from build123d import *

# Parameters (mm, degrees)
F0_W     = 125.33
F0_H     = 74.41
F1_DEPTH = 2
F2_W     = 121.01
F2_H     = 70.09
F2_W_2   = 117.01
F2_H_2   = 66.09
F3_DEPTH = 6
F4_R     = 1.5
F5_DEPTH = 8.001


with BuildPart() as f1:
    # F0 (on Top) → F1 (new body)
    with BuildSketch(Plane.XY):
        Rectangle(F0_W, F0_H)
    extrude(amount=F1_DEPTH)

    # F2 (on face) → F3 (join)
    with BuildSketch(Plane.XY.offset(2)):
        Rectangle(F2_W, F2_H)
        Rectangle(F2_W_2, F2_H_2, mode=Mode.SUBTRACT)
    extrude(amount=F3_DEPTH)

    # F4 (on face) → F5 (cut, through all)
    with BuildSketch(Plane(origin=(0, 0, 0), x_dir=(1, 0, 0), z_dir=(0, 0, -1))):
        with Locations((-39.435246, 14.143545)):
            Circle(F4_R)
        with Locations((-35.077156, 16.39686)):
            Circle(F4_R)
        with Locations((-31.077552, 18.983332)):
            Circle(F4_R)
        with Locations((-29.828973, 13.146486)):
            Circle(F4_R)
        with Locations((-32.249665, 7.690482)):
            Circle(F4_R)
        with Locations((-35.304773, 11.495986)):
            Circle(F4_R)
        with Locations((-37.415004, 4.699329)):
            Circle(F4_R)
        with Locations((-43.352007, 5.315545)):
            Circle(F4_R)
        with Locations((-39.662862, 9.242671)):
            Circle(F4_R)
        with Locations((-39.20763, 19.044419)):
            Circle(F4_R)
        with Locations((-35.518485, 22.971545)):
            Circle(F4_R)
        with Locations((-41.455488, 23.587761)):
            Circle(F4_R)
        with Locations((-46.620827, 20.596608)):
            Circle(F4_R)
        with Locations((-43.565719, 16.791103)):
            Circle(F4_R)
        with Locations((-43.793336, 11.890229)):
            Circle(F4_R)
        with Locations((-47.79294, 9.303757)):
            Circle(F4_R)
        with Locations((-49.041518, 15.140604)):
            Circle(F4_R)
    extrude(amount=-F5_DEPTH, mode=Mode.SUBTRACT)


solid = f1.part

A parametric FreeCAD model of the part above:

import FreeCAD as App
import Part
import Sketcher
Q = App.Units.Quantity


def add_polygon(sketch, points):
    """Adds a closed chain of lines whose ends are joined by coincident constraints."""
    first, n = sketch.GeometryCount, len(points)
    for a, b in zip(points, points[1:] + points[:1]):
        sketch.addGeometry(Part.LineSegment(App.Vector(*a, 0), App.Vector(*b, 0)), False)
    for i in range(n):
        sketch.addConstraint(Sketcher.Constraint("Coincident", first + i, 2, first + (i + 1) % n, 1))

doc = App.newDocument("Part")
body = doc.addObject("PartDesign::Body", "Body")

# Sketch on XY plane
sketch1 = doc.addObject("Sketcher::SketchObject", "Sketch")
body.addObject(sketch1)
sketch1.AttachmentSupport = (doc.XY_Plane, [""])
sketch1.MapMode = "FlatFace"
add_polygon(sketch1, [(-63, 37), (-63, -37), (63, -37), (63, 37)])  # lines 0-3
sketch1.addConstraint(Sketcher.Constraint("Vertical", 0))
sketch1.addConstraint(Sketcher.Constraint("Horizontal", 1))
sketch1.addConstraint(Sketcher.Constraint("Vertical", 2))
sketch1.addConstraint(Sketcher.Constraint("Horizontal", 3))
sketch1.addConstraint(Sketcher.Constraint("Symmetric", 0, 2, 2, 2, -1, 1))
sketch1.addConstraint(Sketcher.Constraint("DistanceX", 1, 1, 1, 2, Q("125.33 mm")))
sketch1.addConstraint(Sketcher.Constraint("DistanceY", 0, 2, 0, 1, Q("74.41 mm")))
pad1 = doc.addObject("PartDesign::Pad", "Pad")
body.addObject(pad1)
pad1.Profile = sketch1
pad1.Length = 2

# Sketch on XY plane
sketch2 = doc.addObject("Sketcher::SketchObject", "Sketch001")
body.addObject(sketch2)
sketch2.AttachmentSupport = (doc.XY_Plane, [""])
sketch2.MapMode = "FlatFace"
sketch2.AttachmentOffset = App.Placement(App.Vector(0, 0, 2), App.Rotation())
add_polygon(sketch2, [(-61, 35), (-61, -35), (61, -35), (61, 35)])  # lines 0-3
add_polygon(sketch2, [(59, -33), (-59, -33), (-59, 33), (59, 33)])  # lines 4-7
sketch2.addConstraint(Sketcher.Constraint("Vertical", 0))
sketch2.addConstraint(Sketcher.Constraint("Horizontal", 1))
sketch2.addConstraint(Sketcher.Constraint("Vertical", 2))
sketch2.addConstraint(Sketcher.Constraint("Horizontal", 3))
sketch2.addConstraint(Sketcher.Constraint("Horizontal", 4))
sketch2.addConstraint(Sketcher.Constraint("Vertical", 5))
sketch2.addConstraint(Sketcher.Constraint("Horizontal", 6))
sketch2.addConstraint(Sketcher.Constraint("Vertical", 7))
sketch2.addConstraint(Sketcher.Constraint("Symmetric", 0, 2, 2, 2, -1, 1))
sketch2.addConstraint(Sketcher.Constraint("Symmetric", 4, 2, 6, 2, -1, 1))
sketch2.addConstraint(Sketcher.Constraint("DistanceX", 0, 2, 4, 2, Q("2 mm")))
sketch2.addConstraint(Sketcher.Constraint("DistanceY", 0, 2, 4, 2, Q("2 mm")))
sketch2.addConstraint(Sketcher.Constraint("DistanceX", 1, 1, 1, 2, Q("121.01 mm")))
sketch2.addConstraint(Sketcher.Constraint("DistanceY", 0, 2, 0, 1, Q("70.09 mm")))
pad2 = doc.addObject("PartDesign::Pad", "Pad001")
body.addObject(pad2)
pad2.Profile = sketch2
pad2.Length = 6

# Sketch on XY plane
sketch3 = doc.addObject("Sketcher::SketchObject", "Sketch002")
body.addObject(sketch3)
sketch3.AttachmentSupport = (doc.XY_Plane, [""])
sketch3.MapMode = "FlatFace"
sketch3.addGeometry(Part.Circle(App.Vector(-39.4, -14.1, 0), App.Vector(0, 0, 1), 1.5), False)
sketch3.addGeometry(Part.Circle(App.Vector(-35.1, -16.4, 0), App.Vector(0, 0, 1), 1.5), False)
sketch3.addGeometry(Part.Circle(App.Vector(-31.1, -19, 0), App.Vector(0, 0, 1), 1.5), False)
sketch3.addGeometry(Part.Circle(App.Vector(-29.8, -13.1, 0), App.Vector(0, 0, 1), 1.5), False)
sketch3.addGeometry(Part.Circle(App.Vector(-32.2, -7.7, 0), App.Vector(0, 0, 1), 1.5), False)
sketch3.addGeometry(Part.Circle(App.Vector(-35.3, -11.5, 0), App.Vector(0, 0, 1), 1.5), False)
sketch3.addGeometry(Part.Circle(App.Vector(-37.4, -4.7, 0), App.Vector(0, 0, 1), 1.5), False)
sketch3.addGeometry(Part.Circle(App.Vector(-43.4, -5.3, 0), App.Vector(0, 0, 1), 1.5), False)
sketch3.addGeometry(Part.Circle(App.Vector(-39.7, -9.2, 0), App.Vector(0, 0, 1), 1.5), False)
sketch3.addGeometry(Part.Circle(App.Vector(-39.2, -19, 0), App.Vector(0, 0, 1), 1.5), False)
sketch3.addGeometry(Part.Circle(App.Vector(-35.5, -23, 0), App.Vector(0, 0, 1), 1.5), False)
sketch3.addGeometry(Part.Circle(App.Vector(-41.5, -23.6, 0), App.Vector(0, 0, 1), 1.5), False)
sketch3.addGeometry(Part.Circle(App.Vector(-46.6, -20.6, 0), App.Vector(0, 0, 1), 1.5), False)
sketch3.addGeometry(Part.Circle(App.Vector(-43.6, -16.8, 0), App.Vector(0, 0, 1), 1.5), False)
sketch3.addGeometry(Part.Circle(App.Vector(-43.8, -11.9, 0), App.Vector(0, 0, 1), 1.5), False)
sketch3.addGeometry(Part.Circle(App.Vector(-47.8, -9.3, 0), App.Vector(0, 0, 1), 1.5), False)
sketch3.addGeometry(Part.Circle(App.Vector(-49, -15.1, 0), App.Vector(0, 0, 1), 1.5), False)
sketch3.addConstraint(Sketcher.Constraint("Equal", 0, 1))
sketch3.addConstraint(Sketcher.Constraint("Equal", 1, 2))
sketch3.addConstraint(Sketcher.Constraint("Equal", 2, 3))
sketch3.addConstraint(Sketcher.Constraint("Equal", 3, 4))
sketch3.addConstraint(Sketcher.Constraint("Equal", 4, 5))
sketch3.addConstraint(Sketcher.Constraint("Equal", 5, 6))
sketch3.addConstraint(Sketcher.Constraint("Equal", 6, 7))
sketch3.addConstraint(Sketcher.Constraint("Equal", 7, 8))
sketch3.addConstraint(Sketcher.Constraint("Equal", 8, 9))
sketch3.addConstraint(Sketcher.Constraint("Equal", 9, 10))
sketch3.addConstraint(Sketcher.Constraint("Equal", 10, 11))
sketch3.addConstraint(Sketcher.Constraint("Equal", 11, 12))
sketch3.addConstraint(Sketcher.Constraint("Equal", 12, 13))
sketch3.addConstraint(Sketcher.Constraint("Equal", 13, 14))
sketch3.addConstraint(Sketcher.Constraint("Equal", 14, 15))
sketch3.addConstraint(Sketcher.Constraint("Equal", 15, 16))
sketch3.addConstraint(Sketcher.Constraint("Diameter", 0, Q("3 mm")))
sketch3.addConstraint(Sketcher.Constraint("DistanceY", 0, 3, 7, 3, Q("8.828 mm")))
sketch3.addConstraint(Sketcher.Constraint("DistanceY", 10, 3, 0, 3, Q("8.828 mm")))
sketch3.addConstraint(Sketcher.Constraint("DistanceX", 5, 3, 3, 3, Q("5.4758 mm")))
sketch3.addConstraint(Sketcher.Constraint("DistanceY", 3, 3, 5, 3, Q("1.6505 mm")))
sketch3.addConstraint(Sketcher.Constraint("DistanceY", 11, 3, 1, 3, Q("7.190901 mm")))
sketch3.addConstraint(Sketcher.Constraint("DistanceX", 16, 3, 13, 3, Q("5.475799 mm")))
sketch3.addConstraint(Sketcher.Constraint("DistanceY", 13, 3, 16, 3, Q("1.650499 mm")))
sketch3.addConstraint(Sketcher.Constraint("DistanceY", 1, 3, -1, 1, Q("16.39686 mm")))
sketch3.addConstraint(Sketcher.Constraint("DistanceY", 6, 3, -1, 1, Q("4.699329 mm")))
sketch3.addConstraint(Sketcher.Constraint("DistanceX", 8, 3, -1, 1, Q("39.662862 mm")))
sketch3.addConstraint(Sketcher.Constraint("DistanceY", 8, 3, -1, 1, Q("9.242671 mm")))
sketch3.addConstraint(Sketcher.Constraint("DistanceX", 9, 3, -1, 1, Q("39.20763 mm")))
sketch3.addConstraint(Sketcher.Constraint("DistanceY", 9, 3, -1, 1, Q("19.044419 mm")))
sketch3.addConstraint(Sketcher.Constraint("DistanceX", 11, 3, -1, 1, Q("41.455488 mm")))
sketch3.addConstraint(Sketcher.Constraint("DistanceY", 12, 3, -1, 1, Q("20.596608 mm")))
sketch3.addConstraint(Sketcher.Constraint("DistanceX", 13, 3, -1, 1, Q("43.565719 mm")))
sketch3.addConstraint(Sketcher.Constraint("DistanceY", 14, 3, -1, 1, Q("11.890229 mm")))
sketch3.addConstraint(Sketcher.Constraint("DistanceX", 15, 3, -1, 1, Q("47.79294 mm")))
sketch3.addConstraint(Sketcher.Constraint("DistanceX", 0, 3, 1, 3, Q("4.35809 mm")))
sketch3.addConstraint(Sketcher.Constraint("DistanceX", 2, 3, 3, 3, Q("1.248579 mm")))
sketch3.addConstraint(Sketcher.Constraint("DistanceY", 0, 3, 3, 3, Q("0.997059 mm")))
sketch3.addConstraint(Sketcher.Constraint("DistanceX", 4, 3, 3, 3, Q("2.420692 mm")))
sketch3.addConstraint(Sketcher.Constraint("DistanceX", 1, 3, 4, 3, Q("2.827491 mm")))
sketch3.addConstraint(Sketcher.Constraint("DistanceY", 1, 3, 4, 3, Q("8.706378 mm")))
sketch3.addConstraint(Sketcher.Constraint("DistanceY", 2, 3, 4, 3, Q("11.29285 mm")))
sketch3.addConstraint(Sketcher.Constraint("DistanceX", 6, 3, 4, 3, Q("5.165339 mm")))
sketch3.addConstraint(Sketcher.Constraint("DistanceX", 7, 3, 0, 3, Q("3.916761 mm")))
sketch3.addConstraint(Sketcher.Constraint("DistanceX", 8, 3, 5, 3, Q("4.358089 mm")))
sketch3.addConstraint(Sketcher.Constraint("DistanceX", 10, 3, 1, 3, Q("0.441329 mm")))
sketch3.addConstraint(Sketcher.Constraint("DistanceX", 12, 3, 11, 3, Q("5.165339 mm")))
sketch3.addConstraint(Sketcher.Constraint("DistanceY", 13, 3, 0, 3, Q("2.647558 mm")))
sketch3.addConstraint(Sketcher.Constraint("DistanceY", 11, 3, 13, 3, Q("6.796658 mm")))
sketch3.addConstraint(Sketcher.Constraint("DistanceX", 14, 3, 0, 3, Q("4.35809 mm")))
sketch3.addConstraint(Sketcher.Constraint("DistanceY", 15, 3, 7, 3, Q("3.988212 mm")))
pocket1 = doc.addObject("PartDesign::Pocket", "Pocket")
body.addObject(pocket1)
pocket1.Profile = sketch3
pocket1.Type = "ThroughAll"
pocket1.Reversed = True

doc.recompute()
